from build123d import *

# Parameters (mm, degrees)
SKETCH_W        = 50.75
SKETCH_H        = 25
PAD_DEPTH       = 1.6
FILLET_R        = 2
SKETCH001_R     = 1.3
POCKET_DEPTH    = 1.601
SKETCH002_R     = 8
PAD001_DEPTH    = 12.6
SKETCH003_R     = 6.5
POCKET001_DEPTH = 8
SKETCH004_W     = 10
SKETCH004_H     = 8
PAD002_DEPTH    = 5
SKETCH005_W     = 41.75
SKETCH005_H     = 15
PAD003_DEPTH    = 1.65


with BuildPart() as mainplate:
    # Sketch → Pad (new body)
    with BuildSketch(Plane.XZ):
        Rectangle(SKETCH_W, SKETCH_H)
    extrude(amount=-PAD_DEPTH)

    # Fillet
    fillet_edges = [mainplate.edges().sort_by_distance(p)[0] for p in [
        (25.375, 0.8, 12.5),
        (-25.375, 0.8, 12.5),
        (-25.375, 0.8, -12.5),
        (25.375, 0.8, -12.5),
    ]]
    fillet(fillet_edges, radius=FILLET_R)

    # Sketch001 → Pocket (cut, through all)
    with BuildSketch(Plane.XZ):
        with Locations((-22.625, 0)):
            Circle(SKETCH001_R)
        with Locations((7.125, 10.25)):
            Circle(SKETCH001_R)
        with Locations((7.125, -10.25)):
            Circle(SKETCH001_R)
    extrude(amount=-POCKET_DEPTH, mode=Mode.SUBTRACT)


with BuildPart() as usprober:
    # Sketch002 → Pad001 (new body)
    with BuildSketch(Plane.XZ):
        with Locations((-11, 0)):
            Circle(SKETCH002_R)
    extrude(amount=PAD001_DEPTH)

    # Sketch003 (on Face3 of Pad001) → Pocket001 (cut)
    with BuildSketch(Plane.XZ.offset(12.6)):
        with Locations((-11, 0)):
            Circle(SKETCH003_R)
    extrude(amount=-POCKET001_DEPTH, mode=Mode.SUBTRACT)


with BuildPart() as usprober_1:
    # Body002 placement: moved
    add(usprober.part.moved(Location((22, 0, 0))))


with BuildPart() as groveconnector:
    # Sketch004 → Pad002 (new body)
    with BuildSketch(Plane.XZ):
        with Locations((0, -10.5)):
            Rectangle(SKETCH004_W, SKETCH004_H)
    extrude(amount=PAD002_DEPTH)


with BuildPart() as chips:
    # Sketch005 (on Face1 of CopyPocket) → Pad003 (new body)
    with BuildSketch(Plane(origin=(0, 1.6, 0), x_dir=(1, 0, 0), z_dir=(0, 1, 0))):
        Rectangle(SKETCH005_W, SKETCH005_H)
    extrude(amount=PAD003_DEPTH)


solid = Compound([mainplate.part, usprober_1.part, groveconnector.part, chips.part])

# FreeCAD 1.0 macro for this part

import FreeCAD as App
import Part
import Sketcher

V = App.Vector
Q = App.Units.Quantity


def edges_at(feature, points):
    """Names of the edges that pass closest to the given points."""
    edges = feature.Shape.Edges
    near = lambda p: min(range(len(edges)), key=lambda i: edges[i].distToShape(Part.Vertex(*p))[0])
    return sorted({f"Edge{near(p) + 1}" for p in points})


def add_polygon(sketch, points):
    """Adds a closed chain of lines whose ends are joined by coincident constraints."""
    first, n = sketch.GeometryCount, len(points)
    for a, b in zip(points, points[1:] + points[:1]):
        sketch.addGeometry(Part.LineSegment(App.Vector(*a, 0), App.Vector(*b, 0)), False)
    for i in range(n):
        sketch.addConstraint(Sketcher.Constraint("Coincident", first + i, 2, first + (i + 1) % n, 1))

doc = App.newDocument("Part")
params = doc.addObject("Spreadsheet::Sheet", "Params")
for row, (alias, value) in enumerate([
    ("sketch1_height", "25 mm"),
    ("sketch1_width", "50.75 mm"),
    ("pad1_length", "1.6 mm"),
    ("fillet_radius", "2 mm"),
    ("sketch2_diameter", "2.6 mm"),
    ("sketch3_diameter", "16 mm"),
    ("pad2_length", "12.6 mm"),
    ("sketch4_diameter", "13 mm"),
    ("pocket2_length", "8 mm"),
    ("sketch5_width", "10 mm"),
    ("sketch5_height", "8 mm"),
    ("pad3_length", "5 mm"),
    ("sketch6_height", "15 mm"),
    ("sketch6_width", "41.75 mm"),
    ("pad4_length", "1.65 mm"),
], start=1):
    params.set(f"A{row}", alias)
    params.set(f"B{row}", "=" + value)
    params.setAlias(f"B{row}", alias)

body = doc.addObject("PartDesign::Body", "Body")

# Sketch on XZ plane
sketch1 = body.newObject("Sketcher::SketchObject", "Sketch")
sketch1.AttachmentSupport = (doc.getObject("XZ_Plane"), [""])
sketch1.MapMode = "FlatFace"
add_polygon(sketch1, [(-25, 12), (-25, -12), (25, -12), (25, 12)])  # lines 0-3
sketch1.addConstraint(Sketcher.Constraint("Vertical", 0))
sketch1.addConstraint(Sketcher.Constraint("Horizontal", 1))
sketch1.addConstraint(Sketcher.Constraint("Vertical", 2))
sketch1.addConstraint(Sketcher.Constraint("Horizontal", 3))
sketch1.addConstraint(Sketcher.Constraint("Symmetric", 0, 2, 2, 2, -1, 1))
sketch1.addConstraint(Sketcher.Constraint("DistanceY", 0, 2, 0, 1, Q("25 mm")))
sketch1.addConstraint(Sketcher.Constraint("DistanceX", 1, 1, 1, 2, Q("50.75 mm")))
sketch1.setExpression("Constraints[9]", "Params.sketch1_height")
sketch1.setExpression("Constraints[10]", "Params.sketch1_width")
pad1 = body.newObject("PartDesign::Pad", "Pad")
pad1.Profile = sketch1
pad1.setExpression("Length", "Params.pad1_length")
pad1.Reversed = True
doc.recompute()

fillet = body.newObject("PartDesign::Fillet", "Fillet")
fillet.Base = (pad1, edges_at(pad1, [
    (25.375, 0.8, 12.5),
    (-25.375, 0.8, 12.5),
    (-25.375, 0.8, -12.5),
    (25.375, 0.8, -12.5),
]))
fillet.setExpression("Radius", "Params.fillet_radius")

# Sketch on XZ plane
sketch2 = body.newObject("Sketcher::SketchObject", "Sketch001")
sketch2.AttachmentSupport = (doc.getObject("XZ_Plane"), [""])
sketch2.MapMode = "FlatFace"
sketch2.addGeometry(Part.Circle(V(-22.6, 0, 0), V(0, 0, 1), 1.3), False)
sketch2.addGeometry(Part.Circle(V(7.1, 10.2, 0), V(0, 0, 1), 1.3), False)
sketch2.addGeometry(Part.Circle(V(7.1, -10.2, 0), V(0, 0, 1), 1.3), False)
sketch2.addConstraint(Sketcher.Constraint("Equal", 0, 1))
sketch2.addConstraint(Sketcher.Constraint("Equal", 1, 2))
sketch2.addConstraint(Sketcher.Constraint("Symmetric", 1, 3, 2, 3, -1))
sketch2.addConstraint(Sketcher.Constraint("PointOnObject", 0, 3, -1))
sketch2.addConstraint(Sketcher.Constraint("Diameter", 0, Q("2.6 mm")))
sketch2.addConstraint(Sketcher.Constraint("DistanceY", 2, 3, 1, 3, Q("20.5 mm")))
sketch2.addConstraint(Sketcher.Constraint("DistanceX", 0, 3, 1, 3, Q("29.75 mm")))
sketch2.addConstraint(Sketcher.Constraint("DistanceX", 0, 3, -1, 1, Q("22.625 mm")))
sketch2.setExpression("Constraints[4]", "Params.sketch2_diameter")
pocket1 = body.newObject("PartDesign::Pocket", "Pocket")
pocket1.Profile = sketch2
pocket1.Type = "ThroughAll"
body2 = doc.addObject("PartDesign::Body", "Body001")

# Sketch on XZ plane
sketch3 = body2.newObject("Sketcher::SketchObject", "Sketch002")
sketch3.AttachmentSupport = (doc.getObject("XZ_Plane001"), [""])
sketch3.MapMode = "FlatFace"
sketch3.addGeometry(Part.Circle(V(-11, 0, 0), V(0, 0, 1), 8), False)
sketch3.addConstraint(Sketcher.Constraint("PointOnObject", 0, 3, -1))
sketch3.addConstraint(Sketcher.Constraint("Diameter", 0, Q("16 mm")))
sketch3.addConstraint(Sketcher.Constraint("DistanceX", 0, 3, -1, 1, Q("11 mm")))
sketch3.setExpression("Constraints[1]", "Params.sketch3_diameter")
pad2 = body2.newObject("PartDesign::Pad", "Pad001")
pad2.Profile = sketch3
pad2.setExpression("Length", "Params.pad2_length")

# Sketch on XZ plane
sketch4 = body2.newObject("Sketcher::SketchObject", "Sketch003")
sketch4.AttachmentSupport = (doc.getObject("XZ_Plane001"), [""])
sketch4.MapMode = "FlatFace"
sketch4.AttachmentOffset = App.Placement(V(0, 0, 12.6), App.Rotation())
sketch4.addGeometry(Part.Circle(V(-11, 0, 0), V(0, 0, 1), 6), False)
sketch4.addConstraint(Sketcher.Constraint("PointOnObject", 0, 3, -1))
sketch4.addConstraint(Sketcher.Constraint("Diameter", 0, Q("13 mm")))
sketch4.addConstraint(Sketcher.Constraint("DistanceX", 0, 3, -1, 1, Q("11 mm")))
sketch4.setExpression("Constraints[1]", "Params.sketch4_diameter")
pocket2 = body2.newObject("PartDesign::Pocket", "Pocket001")
pocket2.Profile = sketch4
pocket2.setExpression("Length", "Params.pocket2_length")
body3 = doc.addObject("PartDesign::Body", "Body002")
doc.recompute()

body2.Placement = App.Placement(V(22, 0, 0), App.Rotation(V(0, 0, 1), 0))
boolean = body3.newObject("PartDesign::Boolean", "Boolean")
boolean.Type = "Fuse"
boolean.addObjects([body2])
body4 = doc.addObject("PartDesign::Body", "Body003")

# Sketch on XZ plane
sketch5 = body4.newObject("Sketcher::SketchObject", "Sketch004")
sketch5.AttachmentSupport = (doc.getObject("XZ_Plane003"), [""])
sketch5.MapMode = "FlatFace"
add_polygon(sketch5, [(-5, -6), (-5, -14), (5, -14), (5, -6)])  # lines 0-3
sketch5.addConstraint(Sketcher.Constraint("Vertical", 0))
sketch5.addConstraint(Sketcher.Constraint("Horizontal", 1))
sketch5.addConstraint(Sketcher.Constraint("Vertical", 2))
sketch5.addConstraint(Sketcher.Constraint("Horizontal", 3))
sketch5.addConstraint(Sketcher.Constraint("DistanceX", 1, 1, 1, 2, Q("10 mm")))
sketch5.addConstraint(Sketcher.Constraint("DistanceY", 0, 2, 0, 1, Q("8 mm")))
sketch5.addConstraint(Sketcher.Constraint("DistanceX", 0, 2, -1, 1, Q("5 mm")))
sketch5.addConstraint(Sketcher.Constraint("DistanceY", 0, 2, -1, 1, Q("14.5 mm")))
sketch5.setExpression("Constraints[8]", "Params.sketch5_width")
sketch5.setExpression("Constraints[9]", "Params.sketch5_height")
pad3 = body4.newObject("PartDesign::Pad", "Pad002")
pad3.Profile = sketch5
pad3.setExpression("Length", "Params.pad3_length")
body5 = doc.addObject("PartDesign::Body", "Body004")

# Sketch on XZ plane
sketch6 = body5.newObject("Sketcher::SketchObject", "Sketch005")
sketch6.AttachmentSupport = (doc.getObject("XZ_Plane004"), [""])
sketch6.MapMode = "FlatFace"
sketch6.AttachmentOffset = App.Placement(V(0, 0, -1.6), App.Rotation())
add_polygon(sketch6, [(-21, -8), (-21, 8), (21, 8), (21, -8)])  # lines 0-3
sketch6.addConstraint(Sketcher.Constraint("Vertical", 0))
sketch6.addConstraint(Sketcher.Constraint("Horizontal", 1))
sketch6.addConstraint(Sketcher.Constraint("Vertical", 2))
sketch6.addConstraint(Sketcher.Constraint("Horizontal", 3))
sketch6.addConstraint(Sketcher.Constraint("Symmetric", 0, 2, 2, 2, -1, 1))
sketch6.addConstraint(Sketcher.Constraint("DistanceY", 0, 1, 0, 2, Q("15 mm")))
sketch6.addConstraint(Sketcher.Constraint("DistanceX", 1, 1, 1, 2, Q("41.75 mm")))
sketch6.setExpression("Constraints[9]", "Params.sketch6_height")
sketch6.setExpression("Constraints[10]", "Params.sketch6_width")
pad4 = body5.newObject("PartDesign::Pad", "Pad003")
pad4.Profile = sketch6
pad4.setExpression("Length", "Params.pad4_length")
pad4.Reversed = True

doc.recompute()
